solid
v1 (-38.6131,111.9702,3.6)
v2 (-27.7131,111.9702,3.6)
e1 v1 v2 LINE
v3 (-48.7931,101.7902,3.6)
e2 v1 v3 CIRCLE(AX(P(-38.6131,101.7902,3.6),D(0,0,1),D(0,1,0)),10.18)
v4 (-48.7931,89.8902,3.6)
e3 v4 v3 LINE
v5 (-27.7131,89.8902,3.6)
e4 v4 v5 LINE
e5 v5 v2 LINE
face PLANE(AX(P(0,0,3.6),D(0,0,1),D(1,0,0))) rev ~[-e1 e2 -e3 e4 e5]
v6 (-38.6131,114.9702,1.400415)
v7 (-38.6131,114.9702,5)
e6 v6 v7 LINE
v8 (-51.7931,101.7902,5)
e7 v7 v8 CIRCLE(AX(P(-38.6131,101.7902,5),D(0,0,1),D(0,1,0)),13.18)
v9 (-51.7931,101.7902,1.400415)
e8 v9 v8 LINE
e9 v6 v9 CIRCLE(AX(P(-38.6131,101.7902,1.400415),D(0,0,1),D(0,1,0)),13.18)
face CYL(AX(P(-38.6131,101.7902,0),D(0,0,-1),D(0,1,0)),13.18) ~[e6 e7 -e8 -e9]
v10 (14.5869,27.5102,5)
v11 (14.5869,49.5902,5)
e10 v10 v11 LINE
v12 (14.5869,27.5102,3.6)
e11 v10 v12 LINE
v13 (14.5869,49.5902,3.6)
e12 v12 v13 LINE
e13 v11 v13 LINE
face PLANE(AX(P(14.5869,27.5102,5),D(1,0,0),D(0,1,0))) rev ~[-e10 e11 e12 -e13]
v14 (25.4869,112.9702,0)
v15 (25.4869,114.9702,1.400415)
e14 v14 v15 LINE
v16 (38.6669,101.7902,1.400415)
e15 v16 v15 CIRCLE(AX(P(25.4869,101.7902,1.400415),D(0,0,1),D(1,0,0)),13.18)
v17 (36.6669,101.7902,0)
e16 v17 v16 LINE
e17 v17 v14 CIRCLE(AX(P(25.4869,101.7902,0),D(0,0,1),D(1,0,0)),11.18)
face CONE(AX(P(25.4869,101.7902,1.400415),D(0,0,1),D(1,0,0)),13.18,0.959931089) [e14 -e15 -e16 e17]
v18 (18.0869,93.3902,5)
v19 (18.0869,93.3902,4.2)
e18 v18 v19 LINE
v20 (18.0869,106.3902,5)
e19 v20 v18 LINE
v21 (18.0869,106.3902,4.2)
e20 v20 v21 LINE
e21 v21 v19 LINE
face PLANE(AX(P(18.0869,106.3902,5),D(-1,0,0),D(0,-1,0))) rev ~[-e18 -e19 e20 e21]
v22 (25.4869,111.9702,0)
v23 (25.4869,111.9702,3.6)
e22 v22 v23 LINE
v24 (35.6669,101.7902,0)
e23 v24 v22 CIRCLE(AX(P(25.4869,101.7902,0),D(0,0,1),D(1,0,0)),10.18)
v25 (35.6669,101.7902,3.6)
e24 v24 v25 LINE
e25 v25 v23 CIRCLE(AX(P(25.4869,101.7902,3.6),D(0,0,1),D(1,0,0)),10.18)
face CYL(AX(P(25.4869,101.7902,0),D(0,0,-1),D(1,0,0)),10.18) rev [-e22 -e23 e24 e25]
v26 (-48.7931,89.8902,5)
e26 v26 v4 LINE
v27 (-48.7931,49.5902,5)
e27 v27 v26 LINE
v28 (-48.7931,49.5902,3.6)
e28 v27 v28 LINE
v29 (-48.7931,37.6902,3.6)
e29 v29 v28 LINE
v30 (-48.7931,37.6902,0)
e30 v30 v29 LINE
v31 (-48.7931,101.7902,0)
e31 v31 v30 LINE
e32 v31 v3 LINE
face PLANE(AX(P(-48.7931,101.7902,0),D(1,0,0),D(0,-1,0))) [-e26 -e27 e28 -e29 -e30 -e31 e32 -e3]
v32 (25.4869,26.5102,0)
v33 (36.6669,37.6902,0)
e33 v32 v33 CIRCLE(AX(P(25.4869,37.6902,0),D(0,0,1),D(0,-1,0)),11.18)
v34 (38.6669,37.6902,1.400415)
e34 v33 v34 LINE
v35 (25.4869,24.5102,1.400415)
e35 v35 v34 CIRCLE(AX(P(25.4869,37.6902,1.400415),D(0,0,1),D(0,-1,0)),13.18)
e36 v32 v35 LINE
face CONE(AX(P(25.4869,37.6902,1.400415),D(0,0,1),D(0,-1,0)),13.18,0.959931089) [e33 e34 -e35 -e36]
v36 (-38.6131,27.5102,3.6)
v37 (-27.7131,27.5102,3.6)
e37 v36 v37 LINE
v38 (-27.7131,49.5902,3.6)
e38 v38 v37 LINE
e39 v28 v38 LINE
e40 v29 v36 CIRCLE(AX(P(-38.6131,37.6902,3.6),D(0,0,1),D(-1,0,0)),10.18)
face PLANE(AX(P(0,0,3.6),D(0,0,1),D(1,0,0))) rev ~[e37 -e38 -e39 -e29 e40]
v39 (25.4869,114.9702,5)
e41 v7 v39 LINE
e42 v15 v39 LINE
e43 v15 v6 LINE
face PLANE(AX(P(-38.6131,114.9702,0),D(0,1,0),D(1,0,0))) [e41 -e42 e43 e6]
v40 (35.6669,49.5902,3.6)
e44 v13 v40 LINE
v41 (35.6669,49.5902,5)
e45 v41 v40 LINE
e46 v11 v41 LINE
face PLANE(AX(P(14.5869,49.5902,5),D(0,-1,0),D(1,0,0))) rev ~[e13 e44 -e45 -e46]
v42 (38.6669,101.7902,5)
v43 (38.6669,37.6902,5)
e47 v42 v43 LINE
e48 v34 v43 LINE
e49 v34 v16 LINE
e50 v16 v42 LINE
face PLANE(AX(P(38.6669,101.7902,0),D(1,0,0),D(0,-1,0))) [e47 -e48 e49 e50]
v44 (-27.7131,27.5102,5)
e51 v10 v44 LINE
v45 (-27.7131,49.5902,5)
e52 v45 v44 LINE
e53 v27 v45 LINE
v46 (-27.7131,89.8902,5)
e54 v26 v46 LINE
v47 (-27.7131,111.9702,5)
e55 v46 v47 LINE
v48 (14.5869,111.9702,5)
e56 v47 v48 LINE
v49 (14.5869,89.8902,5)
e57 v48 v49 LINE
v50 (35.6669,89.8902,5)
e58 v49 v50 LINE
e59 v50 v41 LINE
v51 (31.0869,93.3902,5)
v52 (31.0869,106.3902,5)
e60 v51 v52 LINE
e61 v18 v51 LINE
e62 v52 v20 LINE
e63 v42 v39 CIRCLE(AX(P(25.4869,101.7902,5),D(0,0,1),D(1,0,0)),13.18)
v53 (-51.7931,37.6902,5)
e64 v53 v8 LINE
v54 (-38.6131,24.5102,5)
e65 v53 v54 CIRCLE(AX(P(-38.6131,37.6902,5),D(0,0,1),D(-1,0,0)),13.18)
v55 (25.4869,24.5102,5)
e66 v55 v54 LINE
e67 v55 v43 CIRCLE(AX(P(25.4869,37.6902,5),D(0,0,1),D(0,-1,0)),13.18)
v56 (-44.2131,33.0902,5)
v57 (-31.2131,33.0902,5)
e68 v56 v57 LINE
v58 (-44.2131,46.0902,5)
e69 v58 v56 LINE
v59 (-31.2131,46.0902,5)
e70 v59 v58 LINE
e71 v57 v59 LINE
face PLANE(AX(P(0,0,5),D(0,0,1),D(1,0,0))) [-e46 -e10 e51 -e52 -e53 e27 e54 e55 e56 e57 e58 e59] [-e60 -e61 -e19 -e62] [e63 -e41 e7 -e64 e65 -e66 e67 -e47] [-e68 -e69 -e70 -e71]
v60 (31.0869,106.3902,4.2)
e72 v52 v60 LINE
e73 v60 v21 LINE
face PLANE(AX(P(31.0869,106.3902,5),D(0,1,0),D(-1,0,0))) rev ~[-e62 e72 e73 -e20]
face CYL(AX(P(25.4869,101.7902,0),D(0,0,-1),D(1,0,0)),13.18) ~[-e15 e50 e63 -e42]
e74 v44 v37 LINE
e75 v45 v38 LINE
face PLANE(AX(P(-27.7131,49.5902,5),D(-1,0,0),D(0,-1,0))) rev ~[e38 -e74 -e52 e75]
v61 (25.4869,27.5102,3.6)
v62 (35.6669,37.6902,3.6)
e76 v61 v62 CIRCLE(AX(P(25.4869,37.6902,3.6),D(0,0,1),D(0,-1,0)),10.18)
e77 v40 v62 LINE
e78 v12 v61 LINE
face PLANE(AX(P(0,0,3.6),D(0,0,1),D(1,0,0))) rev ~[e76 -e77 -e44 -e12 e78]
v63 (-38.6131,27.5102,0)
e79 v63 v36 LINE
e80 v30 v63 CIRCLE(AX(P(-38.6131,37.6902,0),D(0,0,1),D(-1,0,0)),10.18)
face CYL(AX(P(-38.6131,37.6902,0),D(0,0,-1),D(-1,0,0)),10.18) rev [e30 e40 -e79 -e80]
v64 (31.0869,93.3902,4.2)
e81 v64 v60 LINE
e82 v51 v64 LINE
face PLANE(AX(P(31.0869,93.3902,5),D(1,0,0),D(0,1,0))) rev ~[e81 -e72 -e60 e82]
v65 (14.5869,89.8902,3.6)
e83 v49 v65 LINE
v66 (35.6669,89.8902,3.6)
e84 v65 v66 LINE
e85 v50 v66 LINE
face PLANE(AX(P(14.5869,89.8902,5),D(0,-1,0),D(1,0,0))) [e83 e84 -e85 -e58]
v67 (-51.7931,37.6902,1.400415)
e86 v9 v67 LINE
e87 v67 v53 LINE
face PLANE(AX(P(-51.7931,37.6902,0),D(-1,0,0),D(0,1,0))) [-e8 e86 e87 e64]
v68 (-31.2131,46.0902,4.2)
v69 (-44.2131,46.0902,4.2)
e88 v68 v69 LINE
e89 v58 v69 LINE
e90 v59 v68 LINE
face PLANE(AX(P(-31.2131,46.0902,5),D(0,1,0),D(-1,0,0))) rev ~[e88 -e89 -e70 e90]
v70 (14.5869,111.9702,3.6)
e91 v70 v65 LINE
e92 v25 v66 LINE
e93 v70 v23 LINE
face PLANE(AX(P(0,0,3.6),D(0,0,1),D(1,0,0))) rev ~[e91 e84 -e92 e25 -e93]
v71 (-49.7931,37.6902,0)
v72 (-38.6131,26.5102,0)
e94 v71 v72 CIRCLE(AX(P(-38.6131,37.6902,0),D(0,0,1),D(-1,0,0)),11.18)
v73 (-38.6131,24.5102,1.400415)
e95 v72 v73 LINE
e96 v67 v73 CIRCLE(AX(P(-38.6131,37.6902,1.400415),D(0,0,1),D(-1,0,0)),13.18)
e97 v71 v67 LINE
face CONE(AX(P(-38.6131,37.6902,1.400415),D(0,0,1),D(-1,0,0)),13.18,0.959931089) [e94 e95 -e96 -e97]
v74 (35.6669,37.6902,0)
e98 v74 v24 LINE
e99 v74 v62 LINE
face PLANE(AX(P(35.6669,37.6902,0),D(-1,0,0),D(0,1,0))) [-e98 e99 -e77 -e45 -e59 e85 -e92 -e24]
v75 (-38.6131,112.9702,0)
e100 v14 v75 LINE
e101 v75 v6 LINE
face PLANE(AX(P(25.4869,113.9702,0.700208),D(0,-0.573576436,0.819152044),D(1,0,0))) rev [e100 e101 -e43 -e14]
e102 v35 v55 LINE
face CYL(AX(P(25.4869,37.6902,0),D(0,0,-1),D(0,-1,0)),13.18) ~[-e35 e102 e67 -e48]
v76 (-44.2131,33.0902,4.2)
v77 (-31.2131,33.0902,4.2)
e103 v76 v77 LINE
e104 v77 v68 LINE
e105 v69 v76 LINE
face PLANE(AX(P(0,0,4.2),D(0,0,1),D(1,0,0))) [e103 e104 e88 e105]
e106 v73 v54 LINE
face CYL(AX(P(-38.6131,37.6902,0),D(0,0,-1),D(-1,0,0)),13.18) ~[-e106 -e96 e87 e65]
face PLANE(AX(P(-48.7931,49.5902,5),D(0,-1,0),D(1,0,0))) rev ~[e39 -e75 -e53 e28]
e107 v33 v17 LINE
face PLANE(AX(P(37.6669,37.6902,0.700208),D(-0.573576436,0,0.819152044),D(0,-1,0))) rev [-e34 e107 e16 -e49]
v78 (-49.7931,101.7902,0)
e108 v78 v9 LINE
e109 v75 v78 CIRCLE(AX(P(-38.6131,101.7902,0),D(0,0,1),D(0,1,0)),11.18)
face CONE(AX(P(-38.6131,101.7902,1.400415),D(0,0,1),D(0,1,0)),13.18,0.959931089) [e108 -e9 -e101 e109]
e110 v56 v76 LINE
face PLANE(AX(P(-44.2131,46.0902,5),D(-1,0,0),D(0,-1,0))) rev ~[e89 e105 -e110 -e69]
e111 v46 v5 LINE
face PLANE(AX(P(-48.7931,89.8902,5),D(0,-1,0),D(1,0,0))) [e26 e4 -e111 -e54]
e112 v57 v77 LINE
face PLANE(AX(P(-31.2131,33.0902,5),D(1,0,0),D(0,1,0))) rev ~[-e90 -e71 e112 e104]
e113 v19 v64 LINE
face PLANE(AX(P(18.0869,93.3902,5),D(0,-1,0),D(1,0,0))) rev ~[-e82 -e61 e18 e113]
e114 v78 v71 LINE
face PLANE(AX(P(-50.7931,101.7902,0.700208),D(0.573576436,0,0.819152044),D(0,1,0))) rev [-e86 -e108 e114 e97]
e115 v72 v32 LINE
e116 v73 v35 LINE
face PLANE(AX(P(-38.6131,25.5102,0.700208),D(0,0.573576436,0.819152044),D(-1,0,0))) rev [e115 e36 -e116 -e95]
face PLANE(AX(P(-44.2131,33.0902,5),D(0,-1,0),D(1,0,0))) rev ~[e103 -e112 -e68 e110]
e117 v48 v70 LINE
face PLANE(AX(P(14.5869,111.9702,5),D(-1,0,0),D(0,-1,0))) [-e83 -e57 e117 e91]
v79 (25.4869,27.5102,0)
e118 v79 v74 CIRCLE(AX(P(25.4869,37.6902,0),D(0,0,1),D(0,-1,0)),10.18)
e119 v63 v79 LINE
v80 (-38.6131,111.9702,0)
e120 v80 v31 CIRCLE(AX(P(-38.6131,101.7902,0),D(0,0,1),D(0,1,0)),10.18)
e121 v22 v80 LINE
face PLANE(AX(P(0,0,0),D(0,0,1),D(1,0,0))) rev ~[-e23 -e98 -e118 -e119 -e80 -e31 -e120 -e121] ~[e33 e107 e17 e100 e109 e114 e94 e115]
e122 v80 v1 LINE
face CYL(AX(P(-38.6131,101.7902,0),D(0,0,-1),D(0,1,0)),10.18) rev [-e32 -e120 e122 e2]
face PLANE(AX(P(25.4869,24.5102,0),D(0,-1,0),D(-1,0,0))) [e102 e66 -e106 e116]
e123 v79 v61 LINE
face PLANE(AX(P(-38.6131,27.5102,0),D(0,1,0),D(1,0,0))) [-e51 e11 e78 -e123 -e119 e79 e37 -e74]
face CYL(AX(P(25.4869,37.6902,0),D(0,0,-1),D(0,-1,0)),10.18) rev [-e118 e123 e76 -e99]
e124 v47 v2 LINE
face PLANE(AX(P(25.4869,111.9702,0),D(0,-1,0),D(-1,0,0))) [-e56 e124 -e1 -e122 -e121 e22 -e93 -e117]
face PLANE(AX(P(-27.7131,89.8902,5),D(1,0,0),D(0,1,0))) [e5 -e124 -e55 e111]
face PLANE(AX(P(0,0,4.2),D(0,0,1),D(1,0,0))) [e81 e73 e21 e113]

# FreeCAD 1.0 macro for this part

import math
import FreeCAD as App
import Part
import Sketcher

V = App.Vector


def edges_at(feature, points):
    """Names of the edges that pass closest to the given points."""
    edges = feature.Shape.Edges
    near = lambda p: min(range(len(edges)), key=lambda i: edges[i].distToShape(Part.Vertex(*p))[0])
    return sorted({f"Edge{near(p) + 1}" for p in points})


def add_polygon(sketch, points):
    """Adds a closed chain of lines whose ends are joined by coincident constraints."""
    first, n = sketch.GeometryCount, len(points)
    for a, b in zip(points, points[1:] + points[:1]):
        sketch.addGeometry(Part.LineSegment(App.Vector(*a, 0), App.Vector(*b, 0)), False)
    for i in range(n):
        sketch.addConstraint(Sketcher.Constraint("Coincident", first + i, 2, first + (i + 1) % n, 1))

doc = App.newDocument("Part")
params = doc.addObject("Spreadsheet::Sheet", "Params")
for row, (alias, value) in enumerate([
    ("sketch1_radius", "13.18 mm"),
    ("sketch1_width", "64.1 mm"),
    ("pad1_length", "5 mm"),
    ("chamfer_size", "2 mm"),
    ("sketch2_radius", "10.18 mm"),
    ("sketch2_width", "10.9 mm"),
    ("sketch2_height", "11.9 mm"),
    ("pad2_length", "1.4 mm"),
    ("sketch3_width", "13 mm"),
    ("pocket1_length", "0.8 mm"),
], start=1):
    params.set(f"A{row}", alias)
    params.set(f"B{row}", "=" + value)
    params.setAlias(f"B{row}", alias)

body = doc.addObject("PartDesign::Body", "Body")

sketch1 = doc.addObject("Sketcher::SketchObject", "Sketch")
body.addObject(sketch1)
sketch1.AttachmentSupport = (doc.XY_Plane, [""])
sketch1.MapMode = "FlatFace"
sketch1.addGeometry(Part.LineSegment(V(25, 115, 0), V(-39, 115, 0)), False)
sketch1.addGeometry(Part.ArcOfCircle(Part.Circle(V(-39, 102, 0), V(0, 0, 1), 13), math.radians(90), math.radians(180)), False)
sketch1.addGeometry(Part.LineSegment(V(-52, 102, 0), V(-52, 38, 0)), False)
sketch1.addGeometry(Part.ArcOfCircle(Part.Circle(V(-39, 38, 0), V(0, 0, 1), 13), math.radians(180), math.radians(270)), False)
sketch1.addGeometry(Part.LineSegment(V(-39, 25, 0), V(25, 25, 0)), False)
sketch1.addGeometry(Part.ArcOfCircle(Part.Circle(V(25, 38, 0), V(0, 0, 1), 13), math.radians(-90), math.radians(0)), False)
sketch1.addGeometry(Part.LineSegment(V(39, 38, 0), V(39, 102, 0)), False)
sketch1.addGeometry(Part.ArcOfCircle(Part.Circle(V(25, 102, 0), V(0, 0, 1), 13), math.radians(0), math.radians(90)), False)
sketch1.addGeometry(Part.ArcOfCircle(Part.Circle(V(-39, 102, 0), V(0, 0, 1), 10), math.radians(90), math.radians(180)), False)
sketch1.addGeometry(Part.LineSegment(V(-39, 112, 0), V(25, 112, 0)), False)
sketch1.addGeometry(Part.ArcOfCircle(Part.Circle(V(25, 102, 0), V(0, 0, 1), 10), math.radians(0), math.radians(90)), False)
sketch1.addGeometry(Part.LineSegment(V(36, 102, 0), V(36, 38, 0)), False)
sketch1.addGeometry(Part.ArcOfCircle(Part.Circle(V(25, 38, 0), V(0, 0, 1), 10), math.radians(-90), math.radians(0)), False)
sketch1.addGeometry(Part.LineSegment(V(25, 28, 0), V(-39, 28, 0)), False)
sketch1.addGeometry(Part.ArcOfCircle(Part.Circle(V(-39, 38, 0), V(0, 0, 1), 10), math.radians(180), math.radians(270)), False)
sketch1.addGeometry(Part.LineSegment(V(-49, 38, 0), V(-49, 102, 0)), False)
sketch1.addConstraint(Sketcher.Constraint("Tangent", 0, 2, 1, 1))
sketch1.addConstraint(Sketcher.Constraint("Tangent", 1, 2, 2, 1))
sketch1.addConstraint(Sketcher.Constraint("Tangent", 2, 2, 3, 1))
sketch1.addConstraint(Sketcher.Constraint("Tangent", 3, 2, 4, 1))
sketch1.addConstraint(Sketcher.Constraint("Tangent", 4, 2, 5, 1))
sketch1.addConstraint(Sketcher.Constraint("Tangent", 5, 2, 6, 1))
sketch1.addConstraint(Sketcher.Constraint("Tangent", 6, 2, 7, 1))
sketch1.addConstraint(Sketcher.Constraint("Tangent", 7, 2, 0, 1))
sketch1.addConstraint(Sketcher.Constraint("Tangent", 8, 1, 9, 1))
sketch1.addConstraint(Sketcher.Constraint("Tangent", 9, 2, 10, 2))
sketch1.addConstraint(Sketcher.Constraint("Tangent", 10, 1, 11, 1))
sketch1.addConstraint(Sketcher.Constraint("Tangent", 11, 2, 12, 2))
sketch1.addConstraint(Sketcher.Constraint("Tangent", 12, 1, 13, 1))
sketch1.addConstraint(Sketcher.Constraint("Tangent", 13, 2, 14, 2))
sketch1.addConstraint(Sketcher.Constraint("Tangent", 14, 1, 15, 1))
sketch1.addConstraint(Sketcher.Constraint("Tangent", 15, 2, 8, 2))
sketch1.addConstraint(Sketcher.Constraint("Horizontal", 0))
sketch1.addConstraint(Sketcher.Constraint("Vertical", 2))
sketch1.addConstraint(Sketcher.Constraint("Horizontal", 4))
sketch1.addConstraint(Sketcher.Constraint("Vertical", 6))
sketch1.addConstraint(Sketcher.Constraint("Horizontal", 9))
sketch1.addConstraint(Sketcher.Constraint("Vertical", 11))
sketch1.addConstraint(Sketcher.Constraint("Horizontal", 13))
sketch1.addConstraint(Sketcher.Constraint("Vertical", 15))
sketch1.addConstraint(Sketcher.Constraint("Coincident", 8, 3, 1, 3))
sketch1.addConstraint(Sketcher.Constraint("Coincident", 10, 3, 7, 3))
sketch1.addConstraint(Sketcher.Constraint("Coincident", 12, 3, 5, 3))
sketch1.addConstraint(Sketcher.Constraint("Equal", 1, 3))
sketch1.addConstraint(Sketcher.Constraint("Equal", 3, 5))
sketch1.addConstraint(Sketcher.Constraint("Equal", 5, 7))
sketch1.addConstraint(Sketcher.Constraint("Equal", 12, 14))
sketch1.addConstraint(Sketcher.Constraint("Equal", 13, 2))
sketch1.addConstraint(Sketcher.Constraint("DistanceY", 8, 1, 0, 2, 3.0))
sketch1.addConstraint(Sketcher.Constraint("Radius", 1, 13.18))
sketch1.addConstraint(Sketcher.Constraint("DistanceX", 0, 2, 0, 1, 64.1))
sketch1.addConstraint(Sketcher.Constraint("DistanceX", 1, 3, -1, 1, 38.613))
sketch1.addConstraint(Sketcher.Constraint("DistanceY", -1, 1, 1, 3, 101.7902))
sketch1.setExpression("Constraints[33]", "Params.sketch1_radius")
sketch1.setExpression("Constraints[34]", "Params.sketch1_width")
pad1 = doc.addObject("PartDesign::Pad", "Pad")
body.addObject(pad1)
pad1.Profile = sketch1
pad1.setExpression("Length", "Params.pad1_length")
doc.recompute()

chamfer = doc.addObject("PartDesign::Chamfer", "Chamfer")
body.addObject(chamfer)
chamfer.Base = (pad1, edges_at(pad1, [
    (34.807, 111.11, 0),
    (38.667, 69.74, 0),
    (34.807, 28.37, 0),
    (-6.563, 24.51, 0),
    (-47.933, 28.37, 0),
    (-51.793, 69.74, 0),
    (-47.933, 111.11, 0),
    (-6.563, 114.97, 0),
]))
chamfer.ChamferType = "Distance and Angle"
chamfer.setExpression("Size", "Params.chamfer_size")
chamfer.Angle = 35
chamfer.FlipDirection = True

sketch2 = doc.addObject("Sketcher::SketchObject", "Sketch001")
body.addObject(sketch2)
sketch2.AttachmentSupport = (doc.XY_Plane, [""])
sketch2.MapMode = "FlatFace"
sketch2.AttachmentOffset = App.Placement(V(0, 0, 5), App.Rotation())
sketch2.addGeometry(Part.LineSegment(V(-49, 50, 0), V(-49, 38, 0)), False)
sketch2.addGeometry(Part.ArcOfCircle(Part.Circle(V(-39, 38, 0), V(0, 0, 1), 10), math.radians(180), math.radians(270)), False)
sketch2.addGeometry(Part.LineSegment(V(-39, 28, 0), V(-28, 28, 0)), False)
sketch2.addGeometry(Part.LineSegment(V(-28, 28, 0), V(-28, 50, 0)), False)
sketch2.addGeometry(Part.LineSegment(V(-28, 50, 0), V(-49, 50, 0)), False)
sketch2.addGeometry(Part.LineSegment(V(-49, 102, 0), V(-49, 90, 0)), False)
sketch2.addGeometry(Part.LineSegment(V(-49, 90, 0), V(-28, 90, 0)), False)
sketch2.addGeometry(Part.LineSegment(V(-28, 90, 0), V(-28, 112, 0)), False)
sketch2.addGeometry(Part.LineSegment(V(-28, 112, 0), V(-39, 112, 0)), False)
sketch2.addGeometry(Part.ArcOfCircle(Part.Circle(V(-39, 102, 0), V(0, 0, 1), 10), math.radians(90), math.radians(180)), False)
sketch2.addGeometry(Part.LineSegment(V(15, 50, 0), V(15, 28, 0)), False)
sketch2.addGeometry(Part.LineSegment(V(15, 28, 0), V(25, 28, 0)), False)
sketch2.addGeometry(Part.ArcOfCircle(Part.Circle(V(25, 38, 0), V(0, 0, 1), 10), math.radians(-90), math.radians(0)), False)
sketch2.addGeometry(Part.LineSegment(V(36, 38, 0), V(36, 50, 0)), False)
sketch2.addGeometry(Part.LineSegment(V(36, 50, 0), V(15, 50, 0)), False)
sketch2.addGeometry(Part.LineSegment(V(25, 112, 0), V(15, 112, 0)), False)
sketch2.addGeometry(Part.LineSegment(V(15, 112, 0), V(15, 90, 0)), False)
sketch2.addGeometry(Part.LineSegment(V(15, 90, 0), V(36, 90, 0)), False)
sketch2.addGeometry(Part.LineSegment(V(36, 90, 0), V(36, 102, 0)), False)
sketch2.addGeometry(Part.ArcOfCircle(Part.Circle(V(25, 102, 0), V(0, 0, 1), 10), math.radians(0), math.radians(90)), False)
sketch2.addConstraint(Sketcher.Constraint("Tangent", 0, 2, 1, 1))
sketch2.addConstraint(Sketcher.Constraint("Tangent", 1, 2, 2, 1))
sketch2.addConstraint(Sketcher.Constraint("Coincident", 2, 2, 3, 1))
sketch2.addConstraint(Sketcher.Constraint("Coincident", 3, 2, 4, 1))
sketch2.addConstraint(Sketcher.Constraint("Coincident", 4, 2, 0, 1))
sketch2.addConstraint(Sketcher.Constraint("Coincident", 5, 2, 6, 1))
sketch2.addConstraint(Sketcher.Constraint("Coincident", 6, 2, 7, 1))
sketch2.addConstraint(Sketcher.Constraint("Coincident", 7, 2, 8, 1))
sketch2.addConstraint(Sketcher.Constraint("Tangent", 8, 2, 9, 1))
sketch2.addConstraint(Sketcher.Constraint("Tangent", 9, 2, 5, 1))
sketch2.addConstraint(Sketcher.Constraint("Coincident", 10, 2, 11, 1))
sketch2.addConstraint(Sketcher.Constraint("Tangent", 11, 2, 12, 1))
sketch2.addConstraint(Sketcher.Constraint("Tangent", 12, 2, 13, 1))
sketch2.addConstraint(Sketcher.Constraint("Coincident", 13, 2, 14, 1))
sketch2.addConstraint(Sketcher.Constraint("Coincident", 14, 2, 10, 1))
sketch2.addConstraint(Sketcher.Constraint("Coincident", 15, 2, 16, 1))
sketch2.addConstraint(Sketcher.Constraint("Coincident", 16, 2, 17, 1))
sketch2.addConstraint(Sketcher.Constraint("Coincident", 17, 2, 18, 1))
sketch2.addConstraint(Sketcher.Constraint("Tangent", 18, 2, 19, 1))
sketch2.addConstraint(Sketcher.Constraint("Tangent", 19, 2, 15, 1))
sketch2.addConstraint(Sketcher.Constraint("Vertical", 0))
sketch2.addConstraint(Sketcher.Constraint("Horizontal", 2))
sketch2.addConstraint(Sketcher.Constraint("Vertical", 3))
sketch2.addConstraint(Sketcher.Constraint("Horizontal", 4))
sketch2.addConstraint(Sketcher.Constraint("Vertical", 5))
sketch2.addConstraint(Sketcher.Constraint("Horizontal", 6))
sketch2.addConstraint(Sketcher.Constraint("Vertical", 7))
sketch2.addConstraint(Sketcher.Constraint("Horizontal", 8))
sketch2.addConstraint(Sketcher.Constraint("Vertical", 10))
sketch2.addConstraint(Sketcher.Constraint("Horizontal", 11))
sketch2.addConstraint(Sketcher.Constraint("Vertical", 13))
sketch2.addConstraint(Sketcher.Constraint("Horizontal", 14))
sketch2.addConstraint(Sketcher.Constraint("Horizontal", 15))
sketch2.addConstraint(Sketcher.Constraint("Vertical", 16))
sketch2.addConstraint(Sketcher.Constraint("Horizontal", 17))
sketch2.addConstraint(Sketcher.Constraint("Vertical", 18))
sketch2.addConstraint(Sketcher.Constraint("Equal", 1, 9))
sketch2.addConstraint(Sketcher.Constraint("Equal", 9, 12))
sketch2.addConstraint(Sketcher.Constraint("Equal", 12, 19))
sketch2.addConstraint(Sketcher.Constraint("Horizontal", 1, 3, 12, 3))
sketch2.addConstraint(Sketcher.Constraint("Horizontal", 9, 3, 19, 3))
sketch2.addConstraint(Sketcher.Constraint("Horizontal", 4, 2, 13, 2))
sketch2.addConstraint(Sketcher.Constraint("Horizontal", 6, 2, 16, 2))
sketch2.addConstraint(Sketcher.Constraint("Vertical", 1, 3, 9, 3))
sketch2.addConstraint(Sketcher.Constraint("Vertical", 12, 3, 19, 3))
sketch2.addConstraint(Sketcher.Constraint("Vertical", 3, 2, 6, 2))
sketch2.addConstraint(Sketcher.Constraint("Vertical", 14, 2, 15, 2))
sketch2.addConstraint(Sketcher.Constraint("Equal", 8, 11))
sketch2.addConstraint(Sketcher.Constraint("Equal", 0, 5))
sketch2.addConstraint(Sketcher.Constraint("Radius", 1, 10.18))
sketch2.addConstraint(Sketcher.Constraint("DistanceX", 2, 1, 2, 2, 10.9))
sketch2.addConstraint(Sketcher.Constraint("DistanceY", 0, 2, 0, 1, 11.9))
sketch2.addConstraint(Sketcher.Constraint("DistanceY", 1, 3, 9, 3, 64.1))
sketch2.addConstraint(Sketcher.Constraint("DistanceX", 1, 3, 12, 3, 64.1))
sketch2.addConstraint(Sketcher.Constraint("DistanceX", 1, 3, -1, 1, 38.613))
sketch2.addConstraint(Sketcher.Constraint("DistanceY", -1, 1, 1, 3, 37.6902))
sketch2.setExpression("Constraints[49]", "Params.sketch2_radius")
sketch2.setExpression("Constraints[50]", "Params.sketch2_width")
sketch2.setExpression("Constraints[51]", "Params.sketch2_height")
pad2 = doc.addObject("PartDesign::Pad", "Pad001")
body.addObject(pad2)
pad2.Profile = sketch2
pad2.setExpression("Length", "Params.pad2_length")
pad2.Reversed = True

sketch3 = doc.addObject("Sketcher::SketchObject", "Sketch002")
body.addObject(sketch3)
sketch3.AttachmentSupport = (doc.XY_Plane, [""])
sketch3.MapMode = "FlatFace"
sketch3.AttachmentOffset = App.Placement(V(0, 0, 5), App.Rotation())
add_polygon(sketch3, [(18, 106), (18, 93), (31, 93), (31, 106)])
add_polygon(sketch3, [(-44, 46), (-44, 33), (-31, 33), (-31, 46)])
sketch3.addConstraint(Sketcher.Constraint("Vertical", 0))
sketch3.addConstraint(Sketcher.Constraint("Horizontal", 1))
sketch3.addConstraint(Sketcher.Constraint("Vertical", 2))
sketch3.addConstraint(Sketcher.Constraint("Horizontal", 3))
sketch3.addConstraint(Sketcher.Constraint("Vertical", 4))
sketch3.addConstraint(Sketcher.Constraint("Horizontal", 5))
sketch3.addConstraint(Sketcher.Constraint("Vertical", 6))
sketch3.addConstraint(Sketcher.Constraint("Horizontal", 7))
sketch3.addConstraint(Sketcher.Constraint("Equal", 3, 5))
sketch3.addConstraint(Sketcher.Constraint("Equal", 7, 0))
sketch3.addConstraint(Sketcher.Constraint("Equal", 2, 4))
sketch3.addConstraint(Sketcher.Constraint("DistanceX", 1, 1, 1, 2, 13.0))
sketch3.addConstraint(Sketcher.Constraint("DistanceX", 4, 2, 0, 2, 62.3))
sketch3.addConstraint(Sketcher.Constraint("DistanceY", 4, 2, 0, 2, 60.3))
sketch3.addConstraint(Sketcher.Constraint("DistanceX", -1, 1, 0, 2, 18.087))
sketch3.addConstraint(Sketcher.Constraint("DistanceY", -1, 1, 0, 2, 93.3902))
sketch3.setExpression("Constraints[19]", "Params.sketch3_width")
pocket1 = doc.addObject("PartDesign::Pocket", "Pocket")
body.addObject(pocket1)
pocket1.Profile = sketch3
pocket1.setExpression("Length", "Params.pocket1_length")

doc.recompute()
